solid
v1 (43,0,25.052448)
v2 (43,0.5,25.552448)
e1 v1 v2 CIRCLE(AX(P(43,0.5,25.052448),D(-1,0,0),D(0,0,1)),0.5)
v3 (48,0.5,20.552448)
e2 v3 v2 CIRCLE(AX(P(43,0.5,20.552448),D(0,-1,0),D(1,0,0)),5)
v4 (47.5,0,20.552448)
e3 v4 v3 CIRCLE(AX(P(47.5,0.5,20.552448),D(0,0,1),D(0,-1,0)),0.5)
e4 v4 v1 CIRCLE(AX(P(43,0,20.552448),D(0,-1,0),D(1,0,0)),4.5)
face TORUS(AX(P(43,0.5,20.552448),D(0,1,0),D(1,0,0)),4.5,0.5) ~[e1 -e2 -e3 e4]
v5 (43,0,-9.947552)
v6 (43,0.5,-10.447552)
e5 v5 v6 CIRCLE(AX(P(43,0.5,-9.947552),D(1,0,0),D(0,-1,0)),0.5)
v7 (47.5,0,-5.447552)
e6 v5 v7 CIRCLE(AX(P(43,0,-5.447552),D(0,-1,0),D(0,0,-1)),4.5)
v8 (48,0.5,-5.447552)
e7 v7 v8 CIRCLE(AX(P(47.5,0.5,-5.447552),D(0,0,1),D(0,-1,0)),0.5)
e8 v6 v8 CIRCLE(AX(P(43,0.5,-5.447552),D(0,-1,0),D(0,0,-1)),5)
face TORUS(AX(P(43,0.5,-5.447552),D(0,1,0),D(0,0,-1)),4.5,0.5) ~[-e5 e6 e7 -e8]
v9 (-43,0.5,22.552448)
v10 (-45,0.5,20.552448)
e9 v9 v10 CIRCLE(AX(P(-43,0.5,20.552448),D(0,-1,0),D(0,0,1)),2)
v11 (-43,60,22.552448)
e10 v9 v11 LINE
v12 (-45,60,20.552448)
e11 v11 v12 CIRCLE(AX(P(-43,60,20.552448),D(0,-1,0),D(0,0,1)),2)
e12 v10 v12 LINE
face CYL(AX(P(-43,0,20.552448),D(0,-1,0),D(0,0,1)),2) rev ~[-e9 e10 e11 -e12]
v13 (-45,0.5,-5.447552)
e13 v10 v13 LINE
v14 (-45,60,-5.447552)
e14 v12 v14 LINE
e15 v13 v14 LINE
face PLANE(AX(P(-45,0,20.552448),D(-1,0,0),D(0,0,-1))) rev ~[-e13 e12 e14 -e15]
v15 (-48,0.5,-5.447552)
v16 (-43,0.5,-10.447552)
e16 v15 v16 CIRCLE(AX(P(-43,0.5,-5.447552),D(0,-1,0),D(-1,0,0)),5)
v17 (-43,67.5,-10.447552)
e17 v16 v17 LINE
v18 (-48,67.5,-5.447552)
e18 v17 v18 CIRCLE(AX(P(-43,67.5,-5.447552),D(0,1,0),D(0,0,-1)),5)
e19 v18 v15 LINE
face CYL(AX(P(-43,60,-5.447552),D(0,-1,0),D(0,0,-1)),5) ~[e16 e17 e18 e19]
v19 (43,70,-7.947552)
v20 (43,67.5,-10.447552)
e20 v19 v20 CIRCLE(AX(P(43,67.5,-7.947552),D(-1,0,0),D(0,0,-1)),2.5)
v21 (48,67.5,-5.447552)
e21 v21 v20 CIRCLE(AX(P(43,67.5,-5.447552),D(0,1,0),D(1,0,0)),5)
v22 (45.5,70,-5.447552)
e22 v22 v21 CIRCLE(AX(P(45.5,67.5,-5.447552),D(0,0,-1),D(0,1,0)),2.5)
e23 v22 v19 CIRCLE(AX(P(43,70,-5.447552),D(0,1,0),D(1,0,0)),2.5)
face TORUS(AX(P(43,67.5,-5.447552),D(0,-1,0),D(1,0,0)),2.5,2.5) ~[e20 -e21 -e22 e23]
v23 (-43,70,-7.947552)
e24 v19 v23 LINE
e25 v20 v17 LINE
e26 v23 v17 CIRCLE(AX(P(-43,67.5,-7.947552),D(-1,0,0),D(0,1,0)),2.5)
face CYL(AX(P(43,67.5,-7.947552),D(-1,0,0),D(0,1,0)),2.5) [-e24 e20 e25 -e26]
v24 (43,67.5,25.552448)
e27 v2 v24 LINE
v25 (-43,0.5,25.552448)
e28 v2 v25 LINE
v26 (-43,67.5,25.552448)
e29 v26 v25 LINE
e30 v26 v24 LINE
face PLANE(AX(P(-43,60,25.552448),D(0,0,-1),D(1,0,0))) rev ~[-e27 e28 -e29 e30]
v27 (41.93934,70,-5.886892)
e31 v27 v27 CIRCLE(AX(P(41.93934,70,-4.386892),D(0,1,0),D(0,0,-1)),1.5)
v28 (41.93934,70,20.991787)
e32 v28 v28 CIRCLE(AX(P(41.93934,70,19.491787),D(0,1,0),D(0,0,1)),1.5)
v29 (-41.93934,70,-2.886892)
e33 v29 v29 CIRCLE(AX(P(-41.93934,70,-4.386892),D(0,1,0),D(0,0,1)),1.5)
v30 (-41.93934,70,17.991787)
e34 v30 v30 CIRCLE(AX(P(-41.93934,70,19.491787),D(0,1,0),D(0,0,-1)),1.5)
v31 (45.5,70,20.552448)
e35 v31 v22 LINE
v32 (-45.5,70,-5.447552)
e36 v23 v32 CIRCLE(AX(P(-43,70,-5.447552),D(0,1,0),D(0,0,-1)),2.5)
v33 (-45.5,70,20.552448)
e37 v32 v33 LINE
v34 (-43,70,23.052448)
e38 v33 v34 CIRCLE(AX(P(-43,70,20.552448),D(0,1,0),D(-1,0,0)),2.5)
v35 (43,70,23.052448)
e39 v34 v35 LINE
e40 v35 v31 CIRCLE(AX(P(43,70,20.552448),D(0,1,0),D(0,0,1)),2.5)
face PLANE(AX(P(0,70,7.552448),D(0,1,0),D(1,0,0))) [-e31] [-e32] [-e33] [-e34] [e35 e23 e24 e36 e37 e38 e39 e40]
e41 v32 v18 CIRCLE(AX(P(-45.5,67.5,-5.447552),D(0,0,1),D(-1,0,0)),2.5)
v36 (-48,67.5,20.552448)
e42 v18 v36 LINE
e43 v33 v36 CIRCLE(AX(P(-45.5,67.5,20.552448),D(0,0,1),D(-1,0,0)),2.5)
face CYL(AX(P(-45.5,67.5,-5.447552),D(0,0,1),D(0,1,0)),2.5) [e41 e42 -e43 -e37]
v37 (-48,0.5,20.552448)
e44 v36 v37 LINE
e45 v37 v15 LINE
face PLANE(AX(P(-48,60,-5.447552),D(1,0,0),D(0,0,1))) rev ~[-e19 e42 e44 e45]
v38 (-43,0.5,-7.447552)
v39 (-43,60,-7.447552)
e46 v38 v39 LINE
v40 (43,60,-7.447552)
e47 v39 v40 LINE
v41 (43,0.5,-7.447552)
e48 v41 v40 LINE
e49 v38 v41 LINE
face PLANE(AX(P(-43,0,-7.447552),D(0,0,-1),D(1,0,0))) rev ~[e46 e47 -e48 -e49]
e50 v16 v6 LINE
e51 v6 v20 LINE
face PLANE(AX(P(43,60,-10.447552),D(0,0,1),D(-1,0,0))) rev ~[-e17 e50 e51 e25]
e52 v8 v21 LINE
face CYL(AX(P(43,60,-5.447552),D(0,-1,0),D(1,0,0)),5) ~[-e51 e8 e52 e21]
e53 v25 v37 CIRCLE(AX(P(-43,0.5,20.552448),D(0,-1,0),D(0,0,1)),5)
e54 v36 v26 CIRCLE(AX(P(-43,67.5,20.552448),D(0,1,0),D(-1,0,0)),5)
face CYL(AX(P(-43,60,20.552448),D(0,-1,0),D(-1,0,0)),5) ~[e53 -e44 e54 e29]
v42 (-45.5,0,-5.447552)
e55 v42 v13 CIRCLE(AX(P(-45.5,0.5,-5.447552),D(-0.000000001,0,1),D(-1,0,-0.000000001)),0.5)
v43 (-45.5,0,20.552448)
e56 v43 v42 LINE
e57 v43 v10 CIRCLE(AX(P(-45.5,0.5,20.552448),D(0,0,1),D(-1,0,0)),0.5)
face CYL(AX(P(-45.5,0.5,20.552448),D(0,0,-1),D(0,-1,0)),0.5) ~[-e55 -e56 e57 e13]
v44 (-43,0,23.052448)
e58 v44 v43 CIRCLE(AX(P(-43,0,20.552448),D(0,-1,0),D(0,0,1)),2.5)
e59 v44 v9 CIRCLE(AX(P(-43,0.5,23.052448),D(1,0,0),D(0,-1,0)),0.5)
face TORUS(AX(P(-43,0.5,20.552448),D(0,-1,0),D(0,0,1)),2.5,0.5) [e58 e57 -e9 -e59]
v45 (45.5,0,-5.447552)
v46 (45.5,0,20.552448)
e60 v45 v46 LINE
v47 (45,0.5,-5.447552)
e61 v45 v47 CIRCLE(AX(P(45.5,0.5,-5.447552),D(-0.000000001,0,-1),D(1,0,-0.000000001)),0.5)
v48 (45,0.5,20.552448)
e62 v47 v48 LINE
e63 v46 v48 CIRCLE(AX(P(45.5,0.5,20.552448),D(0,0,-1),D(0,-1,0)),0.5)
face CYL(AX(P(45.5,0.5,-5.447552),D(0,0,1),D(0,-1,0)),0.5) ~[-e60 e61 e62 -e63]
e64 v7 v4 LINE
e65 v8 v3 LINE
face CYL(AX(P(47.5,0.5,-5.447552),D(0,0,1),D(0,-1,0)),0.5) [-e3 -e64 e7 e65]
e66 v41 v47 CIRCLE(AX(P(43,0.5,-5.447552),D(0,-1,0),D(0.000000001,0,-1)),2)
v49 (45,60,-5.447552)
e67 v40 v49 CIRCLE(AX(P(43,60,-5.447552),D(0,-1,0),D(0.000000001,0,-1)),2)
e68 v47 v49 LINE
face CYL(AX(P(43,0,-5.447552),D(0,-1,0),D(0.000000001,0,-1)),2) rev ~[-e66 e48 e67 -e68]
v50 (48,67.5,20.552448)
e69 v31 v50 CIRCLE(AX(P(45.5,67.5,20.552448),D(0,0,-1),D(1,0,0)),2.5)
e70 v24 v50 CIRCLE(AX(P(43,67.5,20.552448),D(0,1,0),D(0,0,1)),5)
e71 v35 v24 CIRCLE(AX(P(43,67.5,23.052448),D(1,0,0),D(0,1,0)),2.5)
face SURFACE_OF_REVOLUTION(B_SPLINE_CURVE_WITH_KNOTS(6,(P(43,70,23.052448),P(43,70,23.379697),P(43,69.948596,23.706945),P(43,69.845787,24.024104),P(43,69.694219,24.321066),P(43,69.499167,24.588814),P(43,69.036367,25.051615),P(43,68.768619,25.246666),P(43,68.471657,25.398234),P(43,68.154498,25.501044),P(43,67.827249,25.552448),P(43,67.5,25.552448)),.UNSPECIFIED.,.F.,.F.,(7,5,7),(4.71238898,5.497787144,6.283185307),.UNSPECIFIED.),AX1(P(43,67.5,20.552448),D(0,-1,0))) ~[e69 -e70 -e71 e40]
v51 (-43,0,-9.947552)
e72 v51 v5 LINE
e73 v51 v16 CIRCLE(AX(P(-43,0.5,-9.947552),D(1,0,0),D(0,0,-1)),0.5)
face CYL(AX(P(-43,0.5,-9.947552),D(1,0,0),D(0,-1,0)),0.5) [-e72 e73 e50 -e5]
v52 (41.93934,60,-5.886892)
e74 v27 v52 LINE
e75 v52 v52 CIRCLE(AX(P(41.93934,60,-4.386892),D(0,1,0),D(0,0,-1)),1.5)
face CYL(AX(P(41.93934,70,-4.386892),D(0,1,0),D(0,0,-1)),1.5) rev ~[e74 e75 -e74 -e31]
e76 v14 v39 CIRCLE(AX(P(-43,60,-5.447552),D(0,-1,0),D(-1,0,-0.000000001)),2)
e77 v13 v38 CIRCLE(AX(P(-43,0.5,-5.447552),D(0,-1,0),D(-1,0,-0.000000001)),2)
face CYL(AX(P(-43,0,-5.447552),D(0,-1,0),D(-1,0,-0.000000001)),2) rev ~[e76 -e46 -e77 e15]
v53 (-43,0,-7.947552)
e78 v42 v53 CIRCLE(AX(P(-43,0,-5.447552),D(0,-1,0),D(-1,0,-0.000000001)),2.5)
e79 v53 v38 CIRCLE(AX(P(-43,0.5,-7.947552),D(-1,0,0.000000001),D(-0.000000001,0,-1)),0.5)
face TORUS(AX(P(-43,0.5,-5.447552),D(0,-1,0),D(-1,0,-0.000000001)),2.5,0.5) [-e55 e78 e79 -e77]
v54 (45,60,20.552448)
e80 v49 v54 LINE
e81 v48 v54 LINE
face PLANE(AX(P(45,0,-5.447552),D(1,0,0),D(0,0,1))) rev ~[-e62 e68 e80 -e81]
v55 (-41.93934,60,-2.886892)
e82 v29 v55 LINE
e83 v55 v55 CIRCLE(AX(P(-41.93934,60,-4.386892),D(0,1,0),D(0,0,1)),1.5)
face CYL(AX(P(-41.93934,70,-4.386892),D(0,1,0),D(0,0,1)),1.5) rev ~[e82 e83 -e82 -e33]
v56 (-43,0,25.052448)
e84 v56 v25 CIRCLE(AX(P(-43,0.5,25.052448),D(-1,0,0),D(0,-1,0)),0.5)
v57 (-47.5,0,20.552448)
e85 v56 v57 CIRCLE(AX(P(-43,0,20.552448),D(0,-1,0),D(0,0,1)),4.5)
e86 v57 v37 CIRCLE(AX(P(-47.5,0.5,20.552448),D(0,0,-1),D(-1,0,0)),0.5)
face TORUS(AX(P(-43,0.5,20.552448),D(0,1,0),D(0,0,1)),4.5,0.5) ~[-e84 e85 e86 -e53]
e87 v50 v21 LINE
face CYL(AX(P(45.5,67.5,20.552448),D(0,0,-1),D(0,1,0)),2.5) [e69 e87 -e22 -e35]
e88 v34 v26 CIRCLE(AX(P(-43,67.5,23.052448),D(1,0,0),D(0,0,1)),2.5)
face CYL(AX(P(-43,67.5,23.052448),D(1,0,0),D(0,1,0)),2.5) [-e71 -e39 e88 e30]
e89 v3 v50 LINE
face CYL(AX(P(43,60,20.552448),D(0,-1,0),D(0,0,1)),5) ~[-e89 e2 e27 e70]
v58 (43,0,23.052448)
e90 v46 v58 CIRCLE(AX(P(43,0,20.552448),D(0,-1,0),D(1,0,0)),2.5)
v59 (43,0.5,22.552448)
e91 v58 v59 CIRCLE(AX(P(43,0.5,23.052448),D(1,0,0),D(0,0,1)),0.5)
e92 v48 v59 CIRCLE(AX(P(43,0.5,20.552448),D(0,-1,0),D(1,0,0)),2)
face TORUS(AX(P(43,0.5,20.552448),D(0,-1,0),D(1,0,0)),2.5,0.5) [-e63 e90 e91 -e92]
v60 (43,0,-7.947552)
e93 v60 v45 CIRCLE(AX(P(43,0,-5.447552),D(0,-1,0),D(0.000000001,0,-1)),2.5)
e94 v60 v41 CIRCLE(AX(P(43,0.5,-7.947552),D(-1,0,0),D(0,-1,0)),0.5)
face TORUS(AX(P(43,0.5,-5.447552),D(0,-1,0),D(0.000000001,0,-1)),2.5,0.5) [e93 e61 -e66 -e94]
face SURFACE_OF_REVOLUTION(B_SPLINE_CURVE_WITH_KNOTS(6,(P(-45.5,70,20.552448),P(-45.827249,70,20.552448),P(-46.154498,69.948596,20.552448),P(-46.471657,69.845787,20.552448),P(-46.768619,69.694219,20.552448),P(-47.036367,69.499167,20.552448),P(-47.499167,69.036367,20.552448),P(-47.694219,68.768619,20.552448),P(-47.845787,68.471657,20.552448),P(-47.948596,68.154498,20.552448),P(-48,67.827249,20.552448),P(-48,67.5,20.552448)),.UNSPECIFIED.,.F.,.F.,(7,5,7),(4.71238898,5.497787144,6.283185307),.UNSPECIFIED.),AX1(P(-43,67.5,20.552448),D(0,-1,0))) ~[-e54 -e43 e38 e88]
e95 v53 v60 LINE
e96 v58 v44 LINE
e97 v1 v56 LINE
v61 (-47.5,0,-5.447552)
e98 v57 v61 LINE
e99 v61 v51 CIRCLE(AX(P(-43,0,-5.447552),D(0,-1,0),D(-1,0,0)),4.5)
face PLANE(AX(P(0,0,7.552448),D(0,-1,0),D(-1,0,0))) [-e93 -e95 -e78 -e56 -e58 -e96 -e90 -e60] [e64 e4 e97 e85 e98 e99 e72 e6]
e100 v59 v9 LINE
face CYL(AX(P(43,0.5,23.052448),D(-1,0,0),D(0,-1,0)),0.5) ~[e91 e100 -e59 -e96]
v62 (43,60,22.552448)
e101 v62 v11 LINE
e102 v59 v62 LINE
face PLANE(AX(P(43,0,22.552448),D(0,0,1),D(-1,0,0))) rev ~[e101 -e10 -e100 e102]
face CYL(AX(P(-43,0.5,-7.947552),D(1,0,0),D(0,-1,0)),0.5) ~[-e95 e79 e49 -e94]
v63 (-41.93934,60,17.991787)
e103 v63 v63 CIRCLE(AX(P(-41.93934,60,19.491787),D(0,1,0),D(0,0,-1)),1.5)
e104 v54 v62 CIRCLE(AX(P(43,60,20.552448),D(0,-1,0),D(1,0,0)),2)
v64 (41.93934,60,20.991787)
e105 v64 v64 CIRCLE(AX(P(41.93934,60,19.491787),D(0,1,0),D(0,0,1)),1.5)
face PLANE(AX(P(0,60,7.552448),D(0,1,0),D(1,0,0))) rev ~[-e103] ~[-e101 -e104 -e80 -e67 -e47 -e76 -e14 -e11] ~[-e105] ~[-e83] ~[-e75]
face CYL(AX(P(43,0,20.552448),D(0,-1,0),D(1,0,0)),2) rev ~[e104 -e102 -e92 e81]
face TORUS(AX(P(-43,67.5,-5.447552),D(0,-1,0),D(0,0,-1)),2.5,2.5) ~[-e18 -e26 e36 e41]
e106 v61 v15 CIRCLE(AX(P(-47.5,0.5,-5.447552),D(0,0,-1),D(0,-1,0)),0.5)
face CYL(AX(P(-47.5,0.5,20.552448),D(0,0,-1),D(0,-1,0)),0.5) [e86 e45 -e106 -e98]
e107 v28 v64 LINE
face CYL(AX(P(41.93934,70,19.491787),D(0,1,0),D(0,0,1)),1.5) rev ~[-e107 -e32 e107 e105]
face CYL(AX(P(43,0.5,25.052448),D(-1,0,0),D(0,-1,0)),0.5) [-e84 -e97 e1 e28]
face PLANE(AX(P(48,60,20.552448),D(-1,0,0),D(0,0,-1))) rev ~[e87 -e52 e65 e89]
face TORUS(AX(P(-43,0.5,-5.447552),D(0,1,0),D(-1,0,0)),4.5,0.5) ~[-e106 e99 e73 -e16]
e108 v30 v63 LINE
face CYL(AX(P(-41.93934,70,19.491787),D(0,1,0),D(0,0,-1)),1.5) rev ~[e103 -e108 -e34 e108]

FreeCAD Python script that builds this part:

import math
import FreeCAD as App
import Part
import Sketcher
from FreeCAD import Vector
Q = App.Units.Quantity


def edges_at(feature, points):
    """Names of the edges that pass closest to the given points."""
    edges = feature.Shape.Edges
    near = lambda p: min(range(len(edges)), key=lambda i: edges[i].distToShape(Part.Vertex(*p))[0])
    return sorted({f"Edge{near(p) + 1}" for p in points})

doc = App.newDocument("Part")
body = doc.addObject("PartDesign::Body", "Body")

sketch1 = body.newObject("Sketcher::SketchObject", "Sketch")
sketch1.AttachmentSupport = (doc.getObject("XZ_Plane"), [""])
sketch1.MapMode = "FlatFace"
sketch1.addGeometry([
    Part.LineSegment(Vector(43, -10.4, 0), Vector(-43, -10.4, 0)),
    Part.ArcOfCircle(Part.Circle(Vector(-43, -5.4, 0), Vector(0, 0, 1), 5), math.radians(-180), math.radians(-90)),
    Part.LineSegment(Vector(-48, -5.4, 0), Vector(-48, 20.6, 0)),
    Part.ArcOfCircle(Part.Circle(Vector(-43, 20.6, 0), Vector(0, 0, 1), 5), math.radians(90), math.radians(180)),
    Part.LineSegment(Vector(-43, 25.6, 0), Vector(43, 25.6, 0)),
    Part.ArcOfCircle(Part.Circle(Vector(43, 20.6, 0), Vector(0, 0, 1), 5), math.radians(0), math.radians(90)),
    Part.LineSegment(Vector(48, 20.6, 0), Vector(48, -5.4, 0)),
    Part.ArcOfCircle(Part.Circle(Vector(43, -5.4, 0), Vector(0, 0, 1), 5), math.radians(-90), math.radians(0)),
    Part.LineSegment(Vector(-43, -7.4, 0), Vector(43, -7.4, 0)),
    Part.ArcOfCircle(Part.Circle(Vector(43, -5.4, 0), Vector(0, 0, 1), 2), math.radians(-90), math.radians(0)),
    Part.LineSegment(Vector(45, -5.4, 0), Vector(45, 20.6, 0)),
    Part.ArcOfCircle(Part.Circle(Vector(43, 20.6, 0), Vector(0, 0, 1), 2), math.radians(0), math.radians(90)),
    Part.LineSegment(Vector(43, 22.6, 0), Vector(-43, 22.6, 0)),
    Part.ArcOfCircle(Part.Circle(Vector(-43, 20.6, 0), Vector(0, 0, 1), 2), math.radians(90), math.radians(180)),
    Part.LineSegment(Vector(-45, 20.6, 0), Vector(-45, -5.4, 0)),
    Part.ArcOfCircle(Part.Circle(Vector(-43, -5.4, 0), Vector(0, 0, 1), 2), math.radians(-180), math.radians(-90)),
], False)
sketch1.addConstraint([
    Sketcher.Constraint("Tangent", 0, 2, 1, 2),
    Sketcher.Constraint("Tangent", 1, 1, 2, 1),
    Sketcher.Constraint("Tangent", 2, 2, 3, 2),
    Sketcher.Constraint("Tangent", 3, 1, 4, 1),
    Sketcher.Constraint("Tangent", 4, 2, 5, 2),
    Sketcher.Constraint("Tangent", 5, 1, 6, 1),
    Sketcher.Constraint("Tangent", 6, 2, 7, 2),
    Sketcher.Constraint("Tangent", 7, 1, 0, 1),
    Sketcher.Constraint("Tangent", 8, 2, 9, 1),
    Sketcher.Constraint("Tangent", 9, 2, 10, 1),
    Sketcher.Constraint("Tangent", 10, 2, 11, 1),
    Sketcher.Constraint("Tangent", 11, 2, 12, 1),
    Sketcher.Constraint("Tangent", 12, 2, 13, 1),
    Sketcher.Constraint("Tangent", 13, 2, 14, 1),
    Sketcher.Constraint("Tangent", 14, 2, 15, 1),
    Sketcher.Constraint("Tangent", 15, 2, 8, 1),
    Sketcher.Constraint("Horizontal", 0),
    Sketcher.Constraint("Vertical", 2),
    Sketcher.Constraint("Horizontal", 4),
    Sketcher.Constraint("Vertical", 6),
    Sketcher.Constraint("Horizontal", 8),
    Sketcher.Constraint("Vertical", 10),
    Sketcher.Constraint("Horizontal", 12),
    Sketcher.Constraint("Vertical", 14),
    Sketcher.Constraint("Coincident", 9, 3, 7, 3),
    Sketcher.Constraint("Coincident", 11, 3, 5, 3),
    Sketcher.Constraint("Coincident", 13, 3, 3, 3),
    Sketcher.Constraint("Equal", 1, 3),
    Sketcher.Constraint("Equal", 3, 5),
    Sketcher.Constraint("Equal", 5, 7),
    Sketcher.Constraint("Equal", 13, 15),
    Sketcher.Constraint("Radius", 1, Q("5 mm")),
    Sketcher.Constraint("Radius", 9, Q("2 mm")),
    Sketcher.Constraint("DistanceX", 0, 2, 0, 1, Q("86 mm")),
    Sketcher.Constraint("DistanceY", 2, 1, 2, 2, Q("26 mm")),
    Sketcher.Constraint("DistanceX", 1, 3, -1, 1, Q("43 mm")),
    Sketcher.Constraint("DistanceY", 1, 3, -1, 1, Q("5.447552 mm")),
])
pad1 = body.newObject("PartDesign::Pad", "Pad")
pad1.Profile = sketch1
pad1.Length = 60
pad1.Reversed = True

sketch2 = body.newObject("Sketcher::SketchObject", "Sketch001")
sketch2.AttachmentSupport = (doc.getObject("XZ_Plane"), [""])
sketch2.MapMode = "FlatFace"
sketch2.AttachmentOffset = App.Placement(Vector(0, 0, -60), App.Rotation())
sketch2.addGeometry([
    Part.LineSegment(Vector(-43, 26, 0), Vector(43, 26, 0)),
    Part.ArcOfCircle(Part.Circle(Vector(43, 21, 0), Vector(0, 0, 1), 5), math.radians(0), math.radians(90)),
    Part.LineSegment(Vector(48, 21, 0), Vector(48, -5, 0)),
    Part.ArcOfCircle(Part.Circle(Vector(43, -5, 0), Vector(0, 0, 1), 5), math.radians(-90), math.radians(0)),
    Part.LineSegment(Vector(43, -10, 0), Vector(-43, -10, 0)),
    Part.ArcOfCircle(Part.Circle(Vector(-43, -5, 0), Vector(0, 0, 1), 5), math.radians(-180), math.radians(-90)),
    Part.LineSegment(Vector(-48, -5, 0), Vector(-48, 21, 0)),
    Part.ArcOfCircle(Part.Circle(Vector(-43, 21, 0), Vector(0, 0, 1), 5), math.radians(90), math.radians(180)),
], False)
sketch2.addConstraint([
    Sketcher.Constraint("Tangent", 0, 2, 1, 2),
    Sketcher.Constraint("Tangent", 1, 1, 2, 1),
    Sketcher.Constraint("Tangent", 2, 2, 3, 2),
    Sketcher.Constraint("Tangent", 3, 1, 4, 1),
    Sketcher.Constraint("Tangent", 4, 2, 5, 2),
    Sketcher.Constraint("Tangent", 5, 1, 6, 1),
    Sketcher.Constraint("Tangent", 6, 2, 7, 2),
    Sketcher.Constraint("Tangent", 7, 1, 0, 1),
    Sketcher.Constraint("Horizontal", 0),
    Sketcher.Constraint("Vertical", 2),
    Sketcher.Constraint("Horizontal", 4),
    Sketcher.Constraint("Vertical", 6),
    Sketcher.Constraint("Equal", 1, 3),
    Sketcher.Constraint("Equal", 3, 5),
    Sketcher.Constraint("Equal", 5, 7),
    Sketcher.Constraint("Radius", 1, Q("5 mm")),
    Sketcher.Constraint("DistanceX", 0, 1, 0, 2, Q("86 mm")),
    Sketcher.Constraint("DistanceY", 2, 2, 2, 1, Q("26 mm")),
    Sketcher.Constraint("DistanceX", -1, 1, 1, 3, Q("43 mm")),
    Sketcher.Constraint("DistanceY", -1, 1, 1, 3, Q("20.552448 mm")),
])
pad2 = body.newObject("PartDesign::Pad", "Pad001")
pad2.Profile = sketch2
pad2.Length = 10
pad2.Reversed = True
doc.recompute()

fillet = body.newObject("PartDesign::Fillet", "Fillet")
fillet.Base = (pad2, edges_at(pad2, [
    (-46.536, 70, 24.088),
    (0, 70, 25.552),
    (46.536, 70, 24.088),
    (48, 70, 7.552),
    (46.536, 70, -8.983),
    (0, 70, -10.448),
    (-46.536, 70, -8.983),
    (-48, 70, 7.552),
]))
fillet.Radius = 2.5
doc.recompute()

fillet2 = body.newObject("PartDesign::Fillet", "Fillet001")
fillet2.Base = (fillet, edges_at(fillet, [
    (48, 0, 7.552),
    (46.536, 0, 24.088),
    (0, 0, 25.552),
    (-46.536, 0, 24.088),
    (-44.414, 0, -6.862),
    (-45, 0, 7.552),
    (-44.414, 0, 21.967),
    (0, 0, 22.552),
    (44.414, 0, 21.967),
    (45, 0, 7.552),
    (44.414, 0, -6.862),
    (0, 0, -7.448),
    (-48, 0, 7.552),
    (-46.536, 0, -8.983),
    (0, 0, -10.448),
    (46.536, 0, -8.983),
]))
fillet2.Radius = 0.5

sketch3 = body.newObject("Sketcher::SketchObject", "Sketch002")
sketch3.AttachmentSupport = (doc.getObject("XZ_Plane"), [""])
sketch3.MapMode = "FlatFace"
sketch3.AttachmentOffset = App.Placement(Vector(0, 0, -70), App.Rotation())
sketch3.addGeometry([
    Part.Circle(Vector(-41.9, -4.4, 0), Vector(0, 0, 1), 1.5),
    Part.Circle(Vector(-41.9, 19.5, 0), Vector(0, 0, 1), 1.5),
    Part.Circle(Vector(41.9, 19.5, 0), Vector(0, 0, 1), 1.5),
    Part.Circle(Vector(41.9, -4.4, 0), Vector(0, 0, 1), 1.5),
], False)
sketch3.addConstraint([
    Sketcher.Constraint("Equal", 0, 1),
    Sketcher.Constraint("Equal", 1, 2),
    Sketcher.Constraint("Equal", 2, 3),
    Sketcher.Constraint("Symmetric", 1, 3, 2, 3, -2),
    Sketcher.Constraint("Symmetric", 0, 3, 3, 3, -2),
    Sketcher.Constraint("Vertical", 0, 3, 1, 3),
    Sketcher.Constraint("Diameter", 0, Q("3 mm")),
    Sketcher.Constraint("DistanceX", 0, 3, -1, 1, Q("41.93934 mm")),
    Sketcher.Constraint("DistanceY", 0, 3, 1, 3, Q("23.87868 mm")),
    Sketcher.Constraint("DistanceY", 0, 3, -1, 1, Q("4.386892 mm")),
])
pocket1 = body.newObject("PartDesign::Pocket", "Pocket")
pocket1.Profile = sketch3
pocket1.Length = 10
pocket1.Reversed = True

doc.recompute()
